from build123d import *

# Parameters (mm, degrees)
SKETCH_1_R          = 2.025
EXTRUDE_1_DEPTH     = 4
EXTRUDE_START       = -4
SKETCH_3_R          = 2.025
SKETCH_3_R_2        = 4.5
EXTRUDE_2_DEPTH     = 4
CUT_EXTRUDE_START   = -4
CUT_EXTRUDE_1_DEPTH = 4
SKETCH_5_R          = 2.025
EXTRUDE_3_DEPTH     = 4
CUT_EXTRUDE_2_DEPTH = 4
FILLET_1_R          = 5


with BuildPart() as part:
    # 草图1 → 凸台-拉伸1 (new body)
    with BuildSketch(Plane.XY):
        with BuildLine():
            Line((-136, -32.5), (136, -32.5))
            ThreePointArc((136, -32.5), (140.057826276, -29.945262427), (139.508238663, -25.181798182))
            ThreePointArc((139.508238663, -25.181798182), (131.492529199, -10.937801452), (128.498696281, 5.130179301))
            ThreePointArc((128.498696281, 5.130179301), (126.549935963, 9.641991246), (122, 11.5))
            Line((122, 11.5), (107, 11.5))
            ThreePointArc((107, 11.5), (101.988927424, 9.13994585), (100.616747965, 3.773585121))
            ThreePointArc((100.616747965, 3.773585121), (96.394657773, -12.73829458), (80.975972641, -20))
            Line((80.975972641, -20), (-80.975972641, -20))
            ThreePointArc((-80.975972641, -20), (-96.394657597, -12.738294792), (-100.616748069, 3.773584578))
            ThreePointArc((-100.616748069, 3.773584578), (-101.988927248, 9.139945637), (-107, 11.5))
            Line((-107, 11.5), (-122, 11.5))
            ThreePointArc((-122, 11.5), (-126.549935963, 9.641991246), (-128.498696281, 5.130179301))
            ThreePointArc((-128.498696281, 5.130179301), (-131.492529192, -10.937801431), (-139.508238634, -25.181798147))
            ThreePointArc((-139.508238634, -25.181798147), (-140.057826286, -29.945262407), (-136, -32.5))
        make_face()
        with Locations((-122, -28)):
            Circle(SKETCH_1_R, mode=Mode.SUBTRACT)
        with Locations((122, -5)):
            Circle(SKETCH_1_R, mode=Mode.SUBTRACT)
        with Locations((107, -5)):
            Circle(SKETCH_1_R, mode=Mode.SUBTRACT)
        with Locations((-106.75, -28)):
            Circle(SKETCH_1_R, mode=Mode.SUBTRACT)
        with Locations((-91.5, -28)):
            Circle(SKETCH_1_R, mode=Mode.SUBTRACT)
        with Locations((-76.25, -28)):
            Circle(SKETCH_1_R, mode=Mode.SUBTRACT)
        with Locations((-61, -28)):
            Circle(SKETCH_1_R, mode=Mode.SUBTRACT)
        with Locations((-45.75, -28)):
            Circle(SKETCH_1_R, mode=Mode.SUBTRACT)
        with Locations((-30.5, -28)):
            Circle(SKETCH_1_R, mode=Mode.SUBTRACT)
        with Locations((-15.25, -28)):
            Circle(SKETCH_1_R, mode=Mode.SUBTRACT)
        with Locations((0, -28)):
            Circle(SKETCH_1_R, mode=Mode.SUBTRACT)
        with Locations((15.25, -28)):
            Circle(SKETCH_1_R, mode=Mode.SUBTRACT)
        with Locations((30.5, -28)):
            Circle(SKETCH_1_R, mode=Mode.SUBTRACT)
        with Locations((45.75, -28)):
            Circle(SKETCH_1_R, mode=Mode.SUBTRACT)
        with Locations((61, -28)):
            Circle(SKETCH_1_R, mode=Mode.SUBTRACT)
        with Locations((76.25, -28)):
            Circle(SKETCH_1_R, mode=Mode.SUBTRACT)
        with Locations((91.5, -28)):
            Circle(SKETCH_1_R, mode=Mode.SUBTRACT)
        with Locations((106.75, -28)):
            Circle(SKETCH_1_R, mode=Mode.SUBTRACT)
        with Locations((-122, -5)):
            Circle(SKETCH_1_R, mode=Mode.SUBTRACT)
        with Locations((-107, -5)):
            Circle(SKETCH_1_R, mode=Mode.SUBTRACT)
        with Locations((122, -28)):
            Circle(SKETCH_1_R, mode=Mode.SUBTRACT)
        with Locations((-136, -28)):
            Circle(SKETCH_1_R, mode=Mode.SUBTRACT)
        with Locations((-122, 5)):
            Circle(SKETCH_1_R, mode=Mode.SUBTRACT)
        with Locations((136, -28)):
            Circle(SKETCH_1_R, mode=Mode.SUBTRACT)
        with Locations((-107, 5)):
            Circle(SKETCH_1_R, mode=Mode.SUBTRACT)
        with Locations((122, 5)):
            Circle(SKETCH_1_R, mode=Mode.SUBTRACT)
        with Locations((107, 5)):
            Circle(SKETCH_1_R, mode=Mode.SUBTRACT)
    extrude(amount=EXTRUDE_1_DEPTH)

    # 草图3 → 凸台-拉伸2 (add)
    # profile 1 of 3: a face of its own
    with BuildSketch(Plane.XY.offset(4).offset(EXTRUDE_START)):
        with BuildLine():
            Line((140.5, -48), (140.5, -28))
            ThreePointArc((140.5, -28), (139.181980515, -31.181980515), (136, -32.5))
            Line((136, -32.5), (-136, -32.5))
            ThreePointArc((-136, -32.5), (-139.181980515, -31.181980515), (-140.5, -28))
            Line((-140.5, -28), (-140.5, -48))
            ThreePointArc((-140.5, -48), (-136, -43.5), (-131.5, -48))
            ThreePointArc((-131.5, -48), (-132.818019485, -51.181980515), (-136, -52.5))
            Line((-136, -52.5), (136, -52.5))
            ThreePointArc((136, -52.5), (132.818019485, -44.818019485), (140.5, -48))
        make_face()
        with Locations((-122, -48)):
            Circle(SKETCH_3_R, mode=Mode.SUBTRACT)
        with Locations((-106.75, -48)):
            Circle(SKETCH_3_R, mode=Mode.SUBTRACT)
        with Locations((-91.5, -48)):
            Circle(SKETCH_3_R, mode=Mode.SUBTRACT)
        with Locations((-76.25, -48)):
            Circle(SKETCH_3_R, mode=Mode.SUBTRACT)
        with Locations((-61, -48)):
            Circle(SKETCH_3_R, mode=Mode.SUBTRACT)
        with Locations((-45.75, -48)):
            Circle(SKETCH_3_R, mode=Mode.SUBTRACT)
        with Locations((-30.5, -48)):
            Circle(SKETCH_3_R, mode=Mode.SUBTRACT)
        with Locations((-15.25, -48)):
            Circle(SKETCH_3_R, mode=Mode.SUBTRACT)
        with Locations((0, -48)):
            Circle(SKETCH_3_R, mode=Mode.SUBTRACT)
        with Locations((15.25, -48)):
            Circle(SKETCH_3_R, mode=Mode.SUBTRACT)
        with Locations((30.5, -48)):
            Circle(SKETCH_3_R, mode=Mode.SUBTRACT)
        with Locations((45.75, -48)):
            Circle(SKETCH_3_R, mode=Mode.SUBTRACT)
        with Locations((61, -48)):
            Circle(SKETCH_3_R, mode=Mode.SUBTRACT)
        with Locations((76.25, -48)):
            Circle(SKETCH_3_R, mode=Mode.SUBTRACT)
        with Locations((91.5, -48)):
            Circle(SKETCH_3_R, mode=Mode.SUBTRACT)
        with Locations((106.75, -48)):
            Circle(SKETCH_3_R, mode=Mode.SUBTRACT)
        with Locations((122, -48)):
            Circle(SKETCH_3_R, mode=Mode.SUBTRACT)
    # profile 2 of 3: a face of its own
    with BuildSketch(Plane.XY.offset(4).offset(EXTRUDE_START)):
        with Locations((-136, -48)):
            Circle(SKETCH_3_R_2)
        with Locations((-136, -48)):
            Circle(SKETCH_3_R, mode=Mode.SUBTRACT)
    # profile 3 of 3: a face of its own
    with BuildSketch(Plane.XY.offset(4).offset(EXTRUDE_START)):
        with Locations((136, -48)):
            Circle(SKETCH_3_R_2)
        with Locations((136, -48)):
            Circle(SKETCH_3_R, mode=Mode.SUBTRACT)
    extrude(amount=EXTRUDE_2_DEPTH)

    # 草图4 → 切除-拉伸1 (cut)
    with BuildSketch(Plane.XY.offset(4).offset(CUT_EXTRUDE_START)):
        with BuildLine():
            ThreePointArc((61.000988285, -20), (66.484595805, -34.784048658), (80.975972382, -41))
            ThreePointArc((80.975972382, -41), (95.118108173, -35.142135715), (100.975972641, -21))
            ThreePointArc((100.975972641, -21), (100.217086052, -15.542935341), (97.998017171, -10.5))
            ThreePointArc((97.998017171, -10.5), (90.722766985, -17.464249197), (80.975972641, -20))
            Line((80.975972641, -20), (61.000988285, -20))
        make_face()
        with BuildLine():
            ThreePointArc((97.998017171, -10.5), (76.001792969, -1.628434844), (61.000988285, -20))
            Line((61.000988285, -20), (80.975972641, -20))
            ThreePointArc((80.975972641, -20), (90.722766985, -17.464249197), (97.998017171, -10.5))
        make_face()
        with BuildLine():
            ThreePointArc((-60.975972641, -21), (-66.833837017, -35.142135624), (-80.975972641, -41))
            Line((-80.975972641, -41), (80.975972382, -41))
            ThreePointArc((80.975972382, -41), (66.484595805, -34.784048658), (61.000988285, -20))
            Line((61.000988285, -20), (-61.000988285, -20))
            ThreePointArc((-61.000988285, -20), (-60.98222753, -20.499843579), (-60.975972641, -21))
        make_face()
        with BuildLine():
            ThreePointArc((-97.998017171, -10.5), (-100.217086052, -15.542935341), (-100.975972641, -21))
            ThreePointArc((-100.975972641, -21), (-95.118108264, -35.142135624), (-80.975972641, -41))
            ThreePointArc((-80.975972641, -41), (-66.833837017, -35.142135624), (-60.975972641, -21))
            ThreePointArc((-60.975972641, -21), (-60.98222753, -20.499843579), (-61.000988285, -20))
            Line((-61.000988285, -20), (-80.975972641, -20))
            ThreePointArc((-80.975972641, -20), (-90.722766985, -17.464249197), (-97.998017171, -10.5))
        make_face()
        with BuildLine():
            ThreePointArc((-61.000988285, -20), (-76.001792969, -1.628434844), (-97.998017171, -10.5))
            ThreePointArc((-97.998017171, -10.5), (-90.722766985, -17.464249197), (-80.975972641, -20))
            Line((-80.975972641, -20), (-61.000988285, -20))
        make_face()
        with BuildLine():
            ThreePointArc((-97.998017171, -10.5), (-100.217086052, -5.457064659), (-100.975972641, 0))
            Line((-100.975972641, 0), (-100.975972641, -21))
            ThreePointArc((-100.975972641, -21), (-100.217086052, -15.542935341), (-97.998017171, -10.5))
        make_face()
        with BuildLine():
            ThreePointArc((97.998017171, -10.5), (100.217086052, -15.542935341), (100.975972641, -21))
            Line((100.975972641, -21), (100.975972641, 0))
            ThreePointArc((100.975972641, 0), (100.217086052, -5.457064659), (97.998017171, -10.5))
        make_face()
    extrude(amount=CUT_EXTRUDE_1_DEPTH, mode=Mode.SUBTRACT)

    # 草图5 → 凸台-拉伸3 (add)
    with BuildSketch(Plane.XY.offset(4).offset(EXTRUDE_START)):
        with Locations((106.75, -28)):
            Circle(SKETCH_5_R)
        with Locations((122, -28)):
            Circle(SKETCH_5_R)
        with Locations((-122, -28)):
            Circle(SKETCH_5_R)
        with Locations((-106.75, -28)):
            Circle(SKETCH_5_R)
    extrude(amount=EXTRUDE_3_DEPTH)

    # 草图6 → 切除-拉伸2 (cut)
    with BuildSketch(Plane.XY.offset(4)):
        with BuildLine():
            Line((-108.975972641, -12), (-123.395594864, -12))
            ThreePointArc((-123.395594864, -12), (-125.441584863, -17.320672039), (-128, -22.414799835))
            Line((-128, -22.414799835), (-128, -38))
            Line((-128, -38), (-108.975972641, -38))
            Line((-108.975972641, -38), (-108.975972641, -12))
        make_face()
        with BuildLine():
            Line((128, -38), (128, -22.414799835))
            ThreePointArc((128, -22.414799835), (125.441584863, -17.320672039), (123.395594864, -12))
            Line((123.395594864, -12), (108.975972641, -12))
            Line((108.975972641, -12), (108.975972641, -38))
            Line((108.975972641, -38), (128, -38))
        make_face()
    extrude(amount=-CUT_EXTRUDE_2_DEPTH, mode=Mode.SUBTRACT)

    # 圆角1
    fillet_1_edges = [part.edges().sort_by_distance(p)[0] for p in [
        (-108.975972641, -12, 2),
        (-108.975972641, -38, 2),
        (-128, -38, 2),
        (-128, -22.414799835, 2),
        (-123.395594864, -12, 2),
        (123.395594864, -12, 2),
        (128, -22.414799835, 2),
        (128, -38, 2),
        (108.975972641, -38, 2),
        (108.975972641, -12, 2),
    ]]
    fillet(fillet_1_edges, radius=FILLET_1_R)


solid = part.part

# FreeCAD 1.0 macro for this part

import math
import FreeCAD as App
import Part
import Sketcher

V = App.Vector
Q = App.Units.Quantity


def edges_at(feature, points):
    """Names of the edges that pass closest to the given points."""
    edges = feature.Shape.Edges
    near = lambda p: min(range(len(edges)), key=lambda i: edges[i].distToShape(Part.Vertex(*p))[0])
    return sorted({f"Edge{near(p) + 1}" for p in points})

doc = App.newDocument("Part")
params = doc.addObject("Spreadsheet::Sheet", "Params")
for row, (alias, value) in enumerate([
    ("sketch1_radius", "50 mm"),
    ("sketch1_radius2", "20 mm"),
    ("sketch1_radius3", "4.5 mm"),
    ("sketch1_radius4", "6.5 mm"),
    ("sketch1_diameter", "4.05 mm"),
    ("pad1_length", "4 mm"),
    ("sketch2_radius", "4.5 mm"),
    ("sketch2_diameter", "4.05 mm"),
    ("sketch2_width", "272 mm"),
    ("sketch2_height", "20 mm"),
    ("pad2_length", "4 mm"),
    ("sketch3_radius", "20 mm"),
    ("sketch3_height", "21 mm"),
    ("pocket1_length", "4 mm"),
    ("sketch4_diameter", "4.05 mm"),
    ("pad3_length", "4 mm"),
    ("sketch5_radius", "58 mm"),
    ("sketch5_height", "26 mm"),
    ("pocket2_length", "4 mm"),
    ("fillet_radius", "5 mm"),
], start=1):
    params.set(f"A{row}", alias)
    params.set(f"B{row}", "=" + value)
    params.setAlias(f"B{row}", alias)

body = doc.addObject("PartDesign::Body", "Body")

sketch1 = doc.addObject("Sketcher::SketchObject", "Sketch")
body.addObject(sketch1)
sketch1.AttachmentSupport = (doc.XY_Plane, [""])
sketch1.MapMode = "FlatFace"
sketch1.addGeometry(Part.LineSegment(V(-136, -32.5, 0), V(136, -32.5, 0)), False)
sketch1.addGeometry(Part.ArcOfCircle(Part.Circle(V(136, -28, 0), V(0, 0, 1), 4.5), math.radians(-90), math.radians(38.775248)), False)
sketch1.addGeometry(Part.ArcOfCircle(Part.Circle(V(178.488668, 6.131556, 0), V(0, 0, 1), 50), math.radians(-178.85243), math.radians(-141.224751)), False)
sketch1.addGeometry(Part.ArcOfCircle(Part.Circle(V(122, 5, 0), V(0, 0, 1), 6.5), math.radians(1.147573), math.radians(90)), False)
sketch1.addGeometry(Part.LineSegment(V(122, 11.5, 0), V(107, 11.5, 0)), False)
sketch1.addGeometry(Part.ArcOfCircle(Part.Circle(V(107, 5, 0), V(0, 0, 1), 6.5), math.radians(90), math.radians(190.875715)), False)
sketch1.addGeometry(Part.ArcOfCircle(Part.Circle(V(80.975973, 0, 0), V(0, 0, 1), 20), math.radians(-90), math.radians(10.875717)), False)
sketch1.addGeometry(Part.LineSegment(V(80.975973, -20, 0), V(-80.975973, -20, 0)), False)
sketch1.addGeometry(Part.ArcOfCircle(Part.Circle(V(-80.975973, 0, 0), V(0, 0, 1), 20), math.radians(169.124284), math.radians(270)), False)
sketch1.addGeometry(Part.ArcOfCircle(Part.Circle(V(-107, 5, 0), V(0, 0, 1), 6.5), math.radians(-10.875719), math.radians(90)), False)
sketch1.addGeometry(Part.LineSegment(V(-107, 11.5, 0), V(-122, 11.5, 0)), False)
sketch1.addGeometry(Part.ArcOfCircle(Part.Circle(V(-122, 5, 0), V(0, 0, 1), 6.5), math.radians(90), math.radians(178.852427)), False)
sketch1.addGeometry(Part.ArcOfCircle(Part.Circle(V(-178.488668, 6.131556, 0), V(0, 0, 1), 50), math.radians(-38.775249), math.radians(-1.14757)), False)
sketch1.addGeometry(Part.ArcOfCircle(Part.Circle(V(-136, -28, 0), V(0, 0, 1), 4.5), math.radians(141.224752), math.radians(270)), False)
sketch1.addGeometry(Part.Circle(V(-136, -28, 0), V(0, 0, 1), 2.025), False)
sketch1.addGeometry(Part.Circle(V(-122, -28, 0), V(0, 0, 1), 2.025), False)
sketch1.addGeometry(Part.Circle(V(-106.75, -28, 0), V(0, 0, 1), 2.025), False)
sketch1.addGeometry(Part.Circle(V(-91.5, -28, 0), V(0, 0, 1), 2.025), False)
sketch1.addGeometry(Part.Circle(V(-76.25, -28, 0), V(0, 0, 1), 2.025), False)
sketch1.addGeometry(Part.Circle(V(-61, -28, 0), V(0, 0, 1), 2.025), False)
sketch1.addGeometry(Part.Circle(V(-45.75, -28, 0), V(0, 0, 1), 2.025), False)
sketch1.addGeometry(Part.Circle(V(-30.5, -28, 0), V(0, 0, 1), 2.025), False)
sketch1.addGeometry(Part.Circle(V(-15.25, -28, 0), V(0, 0, 1), 2.025), False)
sketch1.addGeometry(Part.Circle(V(0, -28, 0), V(0, 0, 1), 2.025), False)
sketch1.addGeometry(Part.Circle(V(15.25, -28, 0), V(0, 0, 1), 2.025), False)
sketch1.addGeometry(Part.Circle(V(30.5, -28, 0), V(0, 0, 1), 2.025), False)
sketch1.addGeometry(Part.Circle(V(45.75, -28, 0), V(0, 0, 1), 2.025), False)
sketch1.addGeometry(Part.Circle(V(61, -28, 0), V(0, 0, 1), 2.025), False)
sketch1.addGeometry(Part.Circle(V(76.25, -28, 0), V(0, 0, 1), 2.025), False)
sketch1.addGeometry(Part.Circle(V(91.5, -28, 0), V(0, 0, 1), 2.025), False)
sketch1.addGeometry(Part.Circle(V(106.75, -28, 0), V(0, 0, 1), 2.025), False)
sketch1.addGeometry(Part.Circle(V(122, -28, 0), V(0, 0, 1), 2.025), False)
sketch1.addGeometry(Part.Circle(V(136, -28, 0), V(0, 0, 1), 2.025), False)
sketch1.addGeometry(Part.Circle(V(-122, -5, 0), V(0, 0, 1), 2.025), False)
sketch1.addGeometry(Part.Circle(V(-107, -5, 0), V(0, 0, 1), 2.025), False)
sketch1.addGeometry(Part.Circle(V(-122, 5, 0), V(0, 0, 1), 2.025), False)
sketch1.addGeometry(Part.Circle(V(-107, 5, 0), V(0, 0, 1), 2.025), False)
sketch1.addGeometry(Part.Circle(V(107, -5, 0), V(0, 0, 1), 2.025), False)
sketch1.addGeometry(Part.Circle(V(122, -5, 0), V(0, 0, 1), 2.025), False)
sketch1.addGeometry(Part.Circle(V(107, 5, 0), V(0, 0, 1), 2.025), False)
sketch1.addGeometry(Part.Circle(V(122, 5, 0), V(0, 0, 1), 2.025), False)
sketch1.addConstraint(Sketcher.Constraint("Tangent", 0, 2, 1, 1))
sketch1.addConstraint(Sketcher.Constraint("Tangent", 1, 2, 2, 2))
sketch1.addConstraint(Sketcher.Constraint("Tangent", 2, 1, 3, 1))
sketch1.addConstraint(Sketcher.Constraint("Tangent", 3, 2, 4, 1))
sketch1.addConstraint(Sketcher.Constraint("Tangent", 4, 2, 5, 1))
sketch1.addConstraint(Sketcher.Constraint("Tangent", 5, 2, 6, 2))
sketch1.addConstraint(Sketcher.Constraint("Tangent", 6, 1, 7, 1))
sketch1.addConstraint(Sketcher.Constraint("Tangent", 7, 2, 8, 2))
sketch1.addConstraint(Sketcher.Constraint("Tangent", 8, 1, 9, 1))
sketch1.addConstraint(Sketcher.Constraint("Tangent", 9, 2, 10, 1))
sketch1.addConstraint(Sketcher.Constraint("Tangent", 10, 2, 11, 1))
sketch1.addConstraint(Sketcher.Constraint("Tangent", 11, 2, 12, 2))
sketch1.addConstraint(Sketcher.Constraint("Tangent", 12, 1, 13, 1))
sketch1.addConstraint(Sketcher.Constraint("Tangent", 13, 2, 0, 1))
sketch1.addConstraint(Sketcher.Constraint("Horizontal", 0))
sketch1.addConstraint(Sketcher.Constraint("Horizontal", 4))
sketch1.addConstraint(Sketcher.Constraint("Horizontal", 7))
sketch1.addConstraint(Sketcher.Constraint("Horizontal", 10))
sketch1.addConstraint(Sketcher.Constraint("Coincident", 14, 3, 13, 3))
sketch1.addConstraint(Sketcher.Constraint("Coincident", 32, 3, 1, 3))
sketch1.addConstraint(Sketcher.Constraint("Coincident", 35, 3, 11, 3))
sketch1.addConstraint(Sketcher.Constraint("Coincident", 36, 3, 9, 3))
sketch1.addConstraint(Sketcher.Constraint("Coincident", 39, 3, 5, 3))
sketch1.addConstraint(Sketcher.Constraint("Coincident", 40, 3, 3, 3))
sketch1.addConstraint(Sketcher.Constraint("Equal", 3, 5))
sketch1.addConstraint(Sketcher.Constraint("Equal", 6, 8))
sketch1.addConstraint(Sketcher.Constraint("Equal", 5, 9))
sketch1.addConstraint(Sketcher.Constraint("Equal", 9, 11))
sketch1.addConstraint(Sketcher.Constraint("Equal", 2, 12))
sketch1.addConstraint(Sketcher.Constraint("Equal", 1, 13))
sketch1.addConstraint(Sketcher.Constraint("Equal", 14, 15))
sketch1.addConstraint(Sketcher.Constraint("Equal", 15, 16))
sketch1.addConstraint(Sketcher.Constraint("Equal", 16, 17))
sketch1.addConstraint(Sketcher.Constraint("Equal", 17, 18))
sketch1.addConstraint(Sketcher.Constraint("Equal", 18, 19))
sketch1.addConstraint(Sketcher.Constraint("Equal", 19, 20))
sketch1.addConstraint(Sketcher.Constraint("Equal", 20, 21))
sketch1.addConstraint(Sketcher.Constraint("Equal", 21, 22))
sketch1.addConstraint(Sketcher.Constraint("Equal", 22, 23))
sketch1.addConstraint(Sketcher.Constraint("Equal", 23, 24))
sketch1.addConstraint(Sketcher.Constraint("Equal", 24, 25))
sketch1.addConstraint(Sketcher.Constraint("Equal", 25, 26))
sketch1.addConstraint(Sketcher.Constraint("Equal", 26, 27))
sketch1.addConstraint(Sketcher.Constraint("Equal", 27, 28))
sketch1.addConstraint(Sketcher.Constraint("Equal", 28, 29))
sketch1.addConstraint(Sketcher.Constraint("Equal", 29, 30))
sketch1.addConstraint(Sketcher.Constraint("Equal", 30, 31))
sketch1.addConstraint(Sketcher.Constraint("Equal", 31, 32))
sketch1.addConstraint(Sketcher.Constraint("Equal", 32, 33))
sketch1.addConstraint(Sketcher.Constraint("Equal", 33, 34))
sketch1.addConstraint(Sketcher.Constraint("Equal", 34, 35))
sketch1.addConstraint(Sketcher.Constraint("Equal", 35, 36))
sketch1.addConstraint(Sketcher.Constraint("Equal", 36, 37))
sketch1.addConstraint(Sketcher.Constraint("Equal", 37, 38))
sketch1.addConstraint(Sketcher.Constraint("Equal", 38, 39))
sketch1.addConstraint(Sketcher.Constraint("Equal", 39, 40))
sketch1.addConstraint(Sketcher.Constraint("Symmetric", 6, 3, 8, 3, -1, 1))
sketch1.addConstraint(Sketcher.Constraint("Symmetric", 3, 3, 33, 3, -1, 1))
sketch1.addConstraint(Sketcher.Constraint("Symmetric", 5, 3, 34, 3, -1, 1))
sketch1.addConstraint(Sketcher.Constraint("Symmetric", 9, 3, 37, 3, -1, 1))
sketch1.addConstraint(Sketcher.Constraint("Symmetric", 11, 3, 38, 3, -1, 1))
sketch1.addConstraint(Sketcher.Constraint("Symmetric", 3, 3, 11, 3, -2))
sketch1.addConstraint(Sketcher.Constraint("Symmetric", 22, 3, 24, 3, -2))
sketch1.addConstraint(Sketcher.Constraint("Symmetric", 21, 3, 25, 3, -2))
sketch1.addConstraint(Sketcher.Constraint("Symmetric", 20, 3, 26, 3, -2))
sketch1.addConstraint(Sketcher.Constraint("Symmetric", 19, 3, 27, 3, -2))
sketch1.addConstraint(Sketcher.Constraint("Symmetric", 18, 3, 28, 3, -2))
sketch1.addConstraint(Sketcher.Constraint("Symmetric", 17, 3, 29, 3, -2))
sketch1.addConstraint(Sketcher.Constraint("Symmetric", 16, 3, 30, 3, -2))
sketch1.addConstraint(Sketcher.Constraint("Symmetric", 15, 3, 31, 3, -2))
sketch1.addConstraint(Sketcher.Constraint("PointOnObject", 23, 3, -2))
sketch1.addConstraint(Sketcher.Constraint("Horizontal", 2, 3, 12, 3))
sketch1.addConstraint(Sketcher.Constraint("Horizontal", 14, 3, 15, 3))
sketch1.addConstraint(Sketcher.Constraint("Horizontal", 15, 3, 16, 3))
sketch1.addConstraint(Sketcher.Constraint("Horizontal", 16, 3, 17, 3))
sketch1.addConstraint(Sketcher.Constraint("Horizontal", 17, 3, 18, 3))
sketch1.addConstraint(Sketcher.Constraint("Horizontal", 18, 3, 19, 3))
sketch1.addConstraint(Sketcher.Constraint("Horizontal", 19, 3, 20, 3))
sketch1.addConstraint(Sketcher.Constraint("Horizontal", 20, 3, 21, 3))
sketch1.addConstraint(Sketcher.Constraint("Horizontal", 21, 3, 22, 3))
sketch1.addConstraint(Sketcher.Constraint("Horizontal", 22, 3, 23, 3))
sketch1.addConstraint(Sketcher.Constraint("Vertical", 11, 3, 15, 3))
sketch1.addConstraint(Sketcher.Constraint("Radius", 2, Q("50 mm")))
sketch1.addConstraint(Sketcher.Constraint("Radius", 6, Q("20 mm")))
sketch1.addConstraint(Sketcher.Constraint("Radius", 1, Q("4.5 mm")))
sketch1.addConstraint(Sketcher.Constraint("Radius", 3, Q("6.5 mm")))
sketch1.addConstraint(Sketcher.Constraint("Diameter", 14, Q("4.05 mm")))
sketch1.addConstraint(Sketcher.Constraint("DistanceX", 0, 1, 0, 2, Q("272 mm")))
sketch1.addConstraint(Sketcher.Constraint("DistanceX", 4, 2, 4, 1, Q("15 mm")))
sketch1.addConstraint(Sketcher.Constraint("DistanceY", 1, 3, -1, 1, Q("28 mm")))
sketch1.addConstraint(Sketcher.Constraint("DistanceX", -1, 1, 3, 3, Q("122 mm")))
sketch1.addConstraint(Sketcher.Constraint("DistanceY", -1, 1, 3, 3, Q("5 mm")))
sketch1.addConstraint(Sketcher.Constraint("DistanceX", 19, 3, -1, 1, Q("61 mm")))
sketch1.addConstraint(Sketcher.Constraint("DistanceX", 16, 3, 20, 3, Q("61 mm")))
sketch1.addConstraint(Sketcher.Constraint("DistanceX", 17, 3, 21, 3, Q("61 mm")))
sketch1.addConstraint(Sketcher.Constraint("DistanceX", 18, 3, 22, 3, Q("61 mm")))
sketch1.addConstraint(Sketcher.Constraint("DistanceX", 20, 3, 24, 3, Q("61 mm")))
sketch1.addConstraint(Sketcher.Constraint("DistanceX", 21, 3, 25, 3, Q("61 mm")))
sketch1.addConstraint(Sketcher.Constraint("DistanceX", 16, 3, 18, 3, Q("30.5 mm")))
sketch1.setExpression("Constraints[82]", "Params.sketch1_radius")
sketch1.setExpression("Constraints[83]", "Params.sketch1_radius2")
sketch1.setExpression("Constraints[84]", "Params.sketch1_radius3")
sketch1.setExpression("Constraints[85]", "Params.sketch1_radius4")
sketch1.setExpression("Constraints[86]", "Params.sketch1_diameter")
pad1 = doc.addObject("PartDesign::Pad", "Pad")
body.addObject(pad1)
pad1.Profile = sketch1
pad1.setExpression("Length", "Params.pad1_length")

sketch2 = doc.addObject("Sketcher::SketchObject", "Sketch001")
body.addObject(sketch2)
sketch2.AttachmentSupport = (doc.XY_Plane, [""])
sketch2.MapMode = "FlatFace"
sketch2.addGeometry(Part.LineSegment(V(140.5, -48, 0), V(140.5, -28, 0)), False)
sketch2.addGeometry(Part.ArcOfCircle(Part.Circle(V(136, -28, 0), V(0, 0, 1), 4.5), math.radians(-90), math.radians(0)), False)
sketch2.addGeometry(Part.LineSegment(V(136, -32.5, 0), V(-136, -32.5, 0)), False)
sketch2.addGeometry(Part.ArcOfCircle(Part.Circle(V(-136, -28, 0), V(0, 0, 1), 4.5), math.radians(-180), math.radians(-90)), False)
sketch2.addGeometry(Part.LineSegment(V(-140.5, -28, 0), V(-140.5, -48, 0)), False)
sketch2.addGeometry(Part.ArcOfCircle(Part.Circle(V(-136, -48, 0), V(0, 0, 1), 4.5), math.radians(180), math.radians(270)), False)
sketch2.addGeometry(Part.LineSegment(V(-136, -52.5, 0), V(136, -52.5, 0)), False)
sketch2.addGeometry(Part.ArcOfCircle(Part.Circle(V(136, -48, 0), V(0, 0, 1), 4.5), math.radians(-90), math.radians(0)), False)
sketch2.addGeometry(Part.Circle(V(-122, -48, 0), V(0, 0, 1), 2.025), False)
sketch2.addGeometry(Part.Circle(V(-106.75, -48, 0), V(0, 0, 1), 2.025), False)
sketch2.addGeometry(Part.Circle(V(-91.5, -48, 0), V(0, 0, 1), 2.025), False)
sketch2.addGeometry(Part.Circle(V(-76.25, -48, 0), V(0, 0, 1), 2.025), False)
sketch2.addGeometry(Part.Circle(V(-61, -48, 0), V(0, 0, 1), 2.025), False)
sketch2.addGeometry(Part.Circle(V(-45.75, -48, 0), V(0, 0, 1), 2.025), False)
sketch2.addGeometry(Part.Circle(V(-30.5, -48, 0), V(0, 0, 1), 2.025), False)
sketch2.addGeometry(Part.Circle(V(-15.25, -48, 0), V(0, 0, 1), 2.025), False)
sketch2.addGeometry(Part.Circle(V(0, -48, 0), V(0, 0, 1), 2.025), False)
sketch2.addGeometry(Part.Circle(V(15.25, -48, 0), V(0, 0, 1), 2.025), False)
sketch2.addGeometry(Part.Circle(V(30.5, -48, 0), V(0, 0, 1), 2.025), False)
sketch2.addGeometry(Part.Circle(V(45.75, -48, 0), V(0, 0, 1), 2.025), False)
sketch2.addGeometry(Part.Circle(V(61, -48, 0), V(0, 0, 1), 2.025), False)
sketch2.addGeometry(Part.Circle(V(76.25, -48, 0), V(0, 0, 1), 2.025), False)
sketch2.addGeometry(Part.Circle(V(91.5, -48, 0), V(0, 0, 1), 2.025), False)
sketch2.addGeometry(Part.Circle(V(106.75, -48, 0), V(0, 0, 1), 2.025), False)
sketch2.addGeometry(Part.Circle(V(122, -48, 0), V(0, 0, 1), 2.025), False)
sketch2.addGeometry(Part.Circle(V(136, -48, 0), V(0, 0, 1), 2.025), False)
sketch2.addGeometry(Part.Circle(V(-136, -48, 0), V(0, 0, 1), 2.025), False)
sketch2.addConstraint(Sketcher.Constraint("Tangent", 0, 2, 1, 2))
sketch2.addConstraint(Sketcher.Constraint("Tangent", 1, 1, 2, 1))
sketch2.addConstraint(Sketcher.Constraint("Tangent", 2, 2, 3, 2))
sketch2.addConstraint(Sketcher.Constraint("Tangent", 3, 1, 4, 1))
sketch2.addConstraint(Sketcher.Constraint("Tangent", 4, 2, 5, 1))
sketch2.addConstraint(Sketcher.Constraint("Tangent", 5, 2, 6, 1))
sketch2.addConstraint(Sketcher.Constraint("Tangent", 6, 2, 7, 1))
sketch2.addConstraint(Sketcher.Constraint("Tangent", 7, 2, 0, 1))
sketch2.addConstraint(Sketcher.Constraint("Vertical", 0))
sketch2.addConstraint(Sketcher.Constraint("Horizontal", 2))
sketch2.addConstraint(Sketcher.Constraint("Vertical", 4))
sketch2.addConstraint(Sketcher.Constraint("Horizontal", 6))
sketch2.addConstraint(Sketcher.Constraint("Coincident", 25, 3, 7, 3))
sketch2.addConstraint(Sketcher.Constraint("Coincident", 26, 3, 5, 3))
sketch2.addConstraint(Sketcher.Constraint("Equal", 1, 3))
sketch2.addConstraint(Sketcher.Constraint("Equal", 3, 5))
sketch2.addConstraint(Sketcher.Constraint("Equal", 5, 7))
sketch2.addConstraint(Sketcher.Constraint("Equal", 8, 9))
sketch2.addConstraint(Sketcher.Constraint("Equal", 9, 10))
sketch2.addConstraint(Sketcher.Constraint("Equal", 10, 11))
sketch2.addConstraint(Sketcher.Constraint("Equal", 11, 12))
sketch2.addConstraint(Sketcher.Constraint("Equal", 12, 13))
sketch2.addConstraint(Sketcher.Constraint("Equal", 13, 14))
sketch2.addConstraint(Sketcher.Constraint("Equal", 14, 15))
sketch2.addConstraint(Sketcher.Constraint("Equal", 15, 16))
sketch2.addConstraint(Sketcher.Constraint("Equal", 16, 17))
sketch2.addConstraint(Sketcher.Constraint("Equal", 17, 18))
sketch2.addConstraint(Sketcher.Constraint("Equal", 18, 19))
sketch2.addConstraint(Sketcher.Constraint("Equal", 19, 20))
sketch2.addConstraint(Sketcher.Constraint("Equal", 20, 21))
sketch2.addConstraint(Sketcher.Constraint("Equal", 21, 22))
sketch2.addConstraint(Sketcher.Constraint("Equal", 22, 23))
sketch2.addConstraint(Sketcher.Constraint("Equal", 23, 24))
sketch2.addConstraint(Sketcher.Constraint("Equal", 24, 25))
sketch2.addConstraint(Sketcher.Constraint("Equal", 25, 26))
sketch2.addConstraint(Sketcher.Constraint("Symmetric", 15, 3, 17, 3, -2))
sketch2.addConstraint(Sketcher.Constraint("Symmetric", 14, 3, 18, 3, -2))
sketch2.addConstraint(Sketcher.Constraint("Symmetric", 13, 3, 19, 3, -2))
sketch2.addConstraint(Sketcher.Constraint("Symmetric", 12, 3, 20, 3, -2))
sketch2.addConstraint(Sketcher.Constraint("Symmetric", 11, 3, 21, 3, -2))
sketch2.addConstraint(Sketcher.Constraint("Symmetric", 10, 3, 22, 3, -2))
sketch2.addConstraint(Sketcher.Constraint("Symmetric", 9, 3, 23, 3, -2))
sketch2.addConstraint(Sketcher.Constraint("Symmetric", 8, 3, 24, 3, -2))
sketch2.addConstraint(Sketcher.Constraint("PointOnObject", 16, 3, -2))
sketch2.addConstraint(Sketcher.Constraint("Horizontal", 7, 3, 8, 3))
sketch2.addConstraint(Sketcher.Constraint("Horizontal", 8, 3, 9, 3))
sketch2.addConstraint(Sketcher.Constraint("Horizontal", 9, 3, 10, 3))
sketch2.addConstraint(Sketcher.Constraint("Horizontal", 10, 3, 11, 3))
sketch2.addConstraint(Sketcher.Constraint("Horizontal", 11, 3, 12, 3))
sketch2.addConstraint(Sketcher.Constraint("Horizontal", 12, 3, 13, 3))
sketch2.addConstraint(Sketcher.Constraint("Horizontal", 13, 3, 14, 3))
sketch2.addConstraint(Sketcher.Constraint("Horizontal", 14, 3, 15, 3))
sketch2.addConstraint(Sketcher.Constraint("Horizontal", 15, 3, 16, 3))
sketch2.addConstraint(Sketcher.Constraint("Radius", 1, Q("4.5 mm")))
sketch2.addConstraint(Sketcher.Constraint("Diameter", 8, Q("4.05 mm")))
sketch2.addConstraint(Sketcher.Constraint("DistanceX", 2, 2, 2, 1, Q("272 mm")))
sketch2.addConstraint(Sketcher.Constraint("DistanceY", 0, 1, 0, 2, Q("20 mm")))
sketch2.addConstraint(Sketcher.Constraint("DistanceX", -1, 1, 1, 3, Q("136 mm")))
sketch2.addConstraint(Sketcher.Constraint("DistanceY", 1, 3, -1, 1, Q("28 mm")))
sketch2.addConstraint(Sketcher.Constraint("DistanceX", 8, 3, -1, 1, Q("122 mm")))
sketch2.addConstraint(Sketcher.Constraint("DistanceX", 12, 3, -1, 1, Q("61 mm")))
sketch2.addConstraint(Sketcher.Constraint("DistanceX", 9, 3, 13, 3, Q("61 mm")))
sketch2.addConstraint(Sketcher.Constraint("DistanceX", 10, 3, 14, 3, Q("61 mm")))
sketch2.addConstraint(Sketcher.Constraint("DistanceX", 11, 3, 15, 3, Q("61 mm")))
sketch2.addConstraint(Sketcher.Constraint("DistanceX", 13, 3, 17, 3, Q("61 mm")))
sketch2.addConstraint(Sketcher.Constraint("DistanceX", 14, 3, 18, 3, Q("61 mm")))
sketch2.addConstraint(Sketcher.Constraint("DistanceX", 9, 3, 11, 3, Q("30.5 mm")))
sketch2.setExpression("Constraints[53]", "Params.sketch2_radius")
sketch2.setExpression("Constraints[54]", "Params.sketch2_diameter")
sketch2.setExpression("Constraints[55]", "Params.sketch2_width")
sketch2.setExpression("Constraints[56]", "Params.sketch2_height")
pad2 = doc.addObject("PartDesign::Pad", "Pad001")
body.addObject(pad2)
pad2.Profile = sketch2
pad2.setExpression("Length", "Params.pad2_length")

sketch3 = doc.addObject("Sketcher::SketchObject", "Sketch002")
body.addObject(sketch3)
sketch3.AttachmentSupport = (doc.XY_Plane, [""])
sketch3.MapMode = "FlatFace"
sketch3.addGeometry(Part.ArcOfCircle(Part.Circle(V(80.975973, -21, 0), V(0, 0, 1), 20), math.radians(-90.000001), math.radians(0)), False)
sketch3.addGeometry(Part.LineSegment(V(100.975973, -21, 0), V(100.975973, 0, 0)), False)
sketch3.addGeometry(Part.ArcOfCircle(Part.Circle(V(80.975973, 0, 0), V(0, 0, 1), 20), math.radians(-31.668243), math.radians(0)), False)
sketch3.addGeometry(Part.ArcOfCircle(Part.Circle(V(80.975973, -21, 0), V(0, 0, 1), 20), math.radians(31.668243), math.radians(177.134016)), False)
sketch3.addGeometry(Part.LineSegment(V(61.000988, -20, 0), V(-61.000988, -20, 0)), False)
sketch3.addGeometry(Part.ArcOfCircle(Part.Circle(V(-80.975973, -21, 0), V(0, 0, 1), 20), math.radians(2.865984), math.radians(148.331757)), False)
sketch3.addGeometry(Part.ArcOfCircle(Part.Circle(V(-80.975973, 0, 0), V(0, 0, 1), 20), math.radians(-180), math.radians(-148.331757)), False)
sketch3.addGeometry(Part.LineSegment(V(-100.975973, 0, 0), V(-100.975973, -21, 0)), False)
sketch3.addGeometry(Part.ArcOfCircle(Part.Circle(V(-80.975973, -21, 0), V(0, 0, 1), 20), math.radians(-180), math.radians(-90)), False)
sketch3.addGeometry(Part.LineSegment(V(-80.975973, -41, 0), V(80.975972, -41, 0)), False)
sketch3.addConstraint(Sketcher.Constraint("Tangent", 0, 2, 1, 1))
sketch3.addConstraint(Sketcher.Constraint("Tangent", 1, 2, 2, 2))
sketch3.addConstraint(Sketcher.Constraint("Coincident", 2, 1, 3, 1))
sketch3.addConstraint(Sketcher.Constraint("Coincident", 3, 2, 4, 1))
sketch3.addConstraint(Sketcher.Constraint("Coincident", 4, 2, 5, 1))
sketch3.addConstraint(Sketcher.Constraint("Coincident", 5, 2, 6, 2))
sketch3.addConstraint(Sketcher.Constraint("Tangent", 6, 1, 7, 1))
sketch3.addConstraint(Sketcher.Constraint("Tangent", 7, 2, 8, 1))
sketch3.addConstraint(Sketcher.Constraint("Tangent", 8, 2, 9, 1))
sketch3.addConstraint(Sketcher.Constraint("Tangent", 9, 2, 0, 1))
sketch3.addConstraint(Sketcher.Constraint("Vertical", 1))
sketch3.addConstraint(Sketcher.Constraint("Horizontal", 4))
sketch3.addConstraint(Sketcher.Constraint("Vertical", 7))
sketch3.addConstraint(Sketcher.Constraint("Horizontal", 9))
sketch3.addConstraint(Sketcher.Constraint("Coincident", 3, 3, 0, 3))
sketch3.addConstraint(Sketcher.Constraint("Coincident", 8, 3, 5, 3))
sketch3.addConstraint(Sketcher.Constraint("Equal", 0, 2))
sketch3.addConstraint(Sketcher.Constraint("Equal", 2, 3))
sketch3.addConstraint(Sketcher.Constraint("Equal", 3, 5))
sketch3.addConstraint(Sketcher.Constraint("Equal", 5, 6))
sketch3.addConstraint(Sketcher.Constraint("Equal", 6, 8))
sketch3.addConstraint(Sketcher.Constraint("Symmetric", 2, 3, 6, 3, -1, 1))
sketch3.addConstraint(Sketcher.Constraint("PointOnObject", 2, 3, -1))
sketch3.addConstraint(Sketcher.Constraint("Radius", 0, Q("20 mm")))
sketch3.addConstraint(Sketcher.Constraint("DistanceY", 1, 1, 1, 2, Q("21 mm")))
sketch3.addConstraint(Sketcher.Constraint("DistanceY", 3, 2, -1, 1, Q("20 mm")))
sketch3.addConstraint(Sketcher.Constraint("DistanceX", 4, 2, 4, 1, Q("122.001977 mm")))
sketch3.setExpression("Constraints[23]", "Params.sketch3_radius")
sketch3.setExpression("Constraints[24]", "Params.sketch3_height")
pocket1 = doc.addObject("PartDesign::Pocket", "Pocket")
body.addObject(pocket1)
pocket1.Profile = sketch3
pocket1.setExpression("Length", "Params.pocket1_length")
pocket1.Reversed = True

sketch4 = doc.addObject("Sketcher::SketchObject", "Sketch003")
body.addObject(sketch4)
sketch4.AttachmentSupport = (doc.XY_Plane, [""])
sketch4.MapMode = "FlatFace"
sketch4.addGeometry(Part.Circle(V(106.75, -28, 0), V(0, 0, 1), 2.025), False)
sketch4.addGeometry(Part.Circle(V(122, -28, 0), V(0, 0, 1), 2.025), False)
sketch4.addGeometry(Part.Circle(V(-122, -28, 0), V(0, 0, 1), 2.025), False)
sketch4.addGeometry(Part.Circle(V(-106.75, -28, 0), V(0, 0, 1), 2.025), False)
sketch4.addConstraint(Sketcher.Constraint("Equal", 0, 1))
sketch4.addConstraint(Sketcher.Constraint("Equal", 1, 2))
sketch4.addConstraint(Sketcher.Constraint("Equal", 2, 3))
sketch4.addConstraint(Sketcher.Constraint("Symmetric", 1, 3, 2, 3, -2))
sketch4.addConstraint(Sketcher.Constraint("Symmetric", 0, 3, 3, 3, -2))
sketch4.addConstraint(Sketcher.Constraint("Horizontal", 0, 3, 1, 3))
sketch4.addConstraint(Sketcher.Constraint("Diameter", 0, Q("4.05 mm")))
sketch4.addConstraint(Sketcher.Constraint("DistanceY", 0, 3, -1, 1, Q("28 mm")))
sketch4.addConstraint(Sketcher.Constraint("DistanceX", -1, 1, 1, 3, Q("122 mm")))
sketch4.addConstraint(Sketcher.Constraint("DistanceX", 3, 3, 0, 3, Q("213.5 mm")))
sketch4.setExpression("Constraints[6]", "Params.sketch4_diameter")
pad3 = doc.addObject("PartDesign::Pad", "Pad002")
body.addObject(pad3)
pad3.Profile = sketch4
pad3.setExpression("Length", "Params.pad3_length")

sketch5 = doc.addObject("Sketcher::SketchObject", "Sketch004")
body.addObject(sketch5)
sketch5.AttachmentSupport = (doc.XY_Plane, [""])
sketch5.MapMode = "FlatFace"
sketch5.AttachmentOffset = App.Placement(V(0, 0, 4), App.Rotation())
sketch5.addGeometry(Part.LineSegment(V(-108.975973, -12, 0), V(-123.395595, -12, 0)), False)
sketch5.addGeometry(Part.ArcOfCircle(Part.Circle(V(-178.488668, 6.131556, 0), V(0, 0, 1), 58), math.radians(-29.483872), math.radians(-18.216775)), False)
sketch5.addGeometry(Part.LineSegment(V(-128, -22.4148, 0), V(-128, -38, 0)), False)
sketch5.addGeometry(Part.LineSegment(V(-128, -38, 0), V(-108.975973, -38, 0)), False)
sketch5.addGeometry(Part.LineSegment(V(-108.975973, -38, 0), V(-108.975973, -12, 0)), False)
sketch5.addGeometry(Part.LineSegment(V(128, -38, 0), V(128, -22.4148, 0)), False)
sketch5.addGeometry(Part.ArcOfCircle(Part.Circle(V(178.488668, 6.131556, 0), V(0, 0, 1), 58), math.radians(-161.783225), math.radians(-150.516128)), False)
sketch5.addGeometry(Part.LineSegment(V(123.395595, -12, 0), V(108.975973, -12, 0)), False)
sketch5.addGeometry(Part.LineSegment(V(108.975973, -12, 0), V(108.975973, -38, 0)), False)
sketch5.addGeometry(Part.LineSegment(V(108.975973, -38, 0), V(128, -38, 0)), False)
sketch5.addConstraint(Sketcher.Constraint("Coincident", 0, 2, 1, 2))
sketch5.addConstraint(Sketcher.Constraint("Coincident", 1, 1, 2, 1))
sketch5.addConstraint(Sketcher.Constraint("Coincident", 2, 2, 3, 1))
sketch5.addConstraint(Sketcher.Constraint("Coincident", 3, 2, 4, 1))
sketch5.addConstraint(Sketcher.Constraint("Coincident", 4, 2, 0, 1))
sketch5.addConstraint(Sketcher.Constraint("Coincident", 5, 2, 6, 2))
sketch5.addConstraint(Sketcher.Constraint("Coincident", 6, 1, 7, 1))
sketch5.addConstraint(Sketcher.Constraint("Coincident", 7, 2, 8, 1))
sketch5.addConstraint(Sketcher.Constraint("Coincident", 8, 2, 9, 1))
sketch5.addConstraint(Sketcher.Constraint("Coincident", 9, 2, 5, 1))
sketch5.addConstraint(Sketcher.Constraint("Horizontal", 0))
sketch5.addConstraint(Sketcher.Constraint("Vertical", 2))
sketch5.addConstraint(Sketcher.Constraint("Horizontal", 3))
sketch5.addConstraint(Sketcher.Constraint("Vertical", 4))
sketch5.addConstraint(Sketcher.Constraint("Vertical", 5))
sketch5.addConstraint(Sketcher.Constraint("Horizontal", 7))
sketch5.addConstraint(Sketcher.Constraint("Vertical", 8))
sketch5.addConstraint(Sketcher.Constraint("Horizontal", 9))
sketch5.addConstraint(Sketcher.Constraint("Equal", 1, 6))
sketch5.addConstraint(Sketcher.Constraint("Symmetric", 1, 3, 6, 3, -2))
sketch5.addConstraint(Sketcher.Constraint("Symmetric", 4, 2, 7, 2, -2))
sketch5.addConstraint(Sketcher.Constraint("Symmetric", 2, 2, 9, 2, -2))
sketch5.addConstraint(Sketcher.Constraint("Radius", 1, Q("58 mm")))
sketch5.addConstraint(Sketcher.Constraint("DistanceY", 4, 1, 4, 2, Q("26 mm")))
sketch5.addConstraint(Sketcher.Constraint("DistanceY", 0, 2, -1, 1, Q("12 mm")))
sketch5.addConstraint(Sketcher.Constraint("DistanceX", 1, 1, -1, 1, Q("128 mm")))
sketch5.addConstraint(Sketcher.Constraint("DistanceY", 2, 2, 2, 1, Q("15.5852 mm")))
sketch5.addConstraint(Sketcher.Constraint("DistanceX", 0, 2, 0, 1, Q("14.419622 mm")))
sketch5.addConstraint(Sketcher.Constraint("DistanceX", 3, 1, 3, 2, Q("19.024027 mm")))
sketch5.setExpression("Constraints[22]", "Params.sketch5_radius")
sketch5.setExpression("Constraints[23]", "Params.sketch5_height")
pocket2 = doc.addObject("PartDesign::Pocket", "Pocket001")
body.addObject(pocket2)
pocket2.Profile = sketch5
pocket2.setExpression("Length", "Params.pocket2_length")
doc.recompute()

fillet = doc.addObject("PartDesign::Fillet", "Fillet")
body.addObject(fillet)
fillet.Base = (pocket2, edges_at(pocket2, [
    (-108.976, -12, 2),
    (-108.976, -38, 2),
    (-128, -38, 2),
    (-128, -22.415, 2),
    (-123.396, -12, 2),
    (123.396, -12, 2),
    (128, -22.415, 2),
    (128, -38, 2),
    (108.976, -38, 2),
    (108.976, -12, 2),
]))
fillet.setExpression("Radius", "Params.fillet_radius")

doc.recompute()
